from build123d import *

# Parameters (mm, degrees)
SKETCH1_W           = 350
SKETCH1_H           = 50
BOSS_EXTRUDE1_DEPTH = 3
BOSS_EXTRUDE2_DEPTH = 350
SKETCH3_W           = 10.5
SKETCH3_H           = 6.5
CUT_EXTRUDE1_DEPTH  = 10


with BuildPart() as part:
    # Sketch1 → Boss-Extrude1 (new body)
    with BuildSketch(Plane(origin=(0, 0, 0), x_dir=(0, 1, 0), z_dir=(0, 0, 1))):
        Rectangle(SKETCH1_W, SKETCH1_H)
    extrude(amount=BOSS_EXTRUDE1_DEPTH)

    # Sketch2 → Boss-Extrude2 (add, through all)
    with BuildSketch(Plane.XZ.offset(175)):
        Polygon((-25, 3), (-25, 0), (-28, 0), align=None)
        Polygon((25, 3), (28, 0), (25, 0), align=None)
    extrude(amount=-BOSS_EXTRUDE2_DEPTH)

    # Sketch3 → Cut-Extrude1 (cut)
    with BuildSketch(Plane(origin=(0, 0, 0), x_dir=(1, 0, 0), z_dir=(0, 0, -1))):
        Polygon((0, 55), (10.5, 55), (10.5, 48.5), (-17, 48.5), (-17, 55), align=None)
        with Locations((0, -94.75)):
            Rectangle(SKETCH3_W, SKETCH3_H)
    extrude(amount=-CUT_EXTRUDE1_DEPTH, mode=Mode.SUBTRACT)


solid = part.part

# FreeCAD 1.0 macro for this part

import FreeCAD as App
import Part
import Sketcher
from FreeCAD import Vector

doc = App.newDocument("Part")
body = doc.addObject("PartDesign::Body", "Body")

sketch1 = body.newObject("Sketcher::SketchObject", "Sketch")
sketch1.AttachmentSupport = (doc.getObject("XY_Plane"), [""])
sketch1.MapMode = "FlatFace"
sketch1.addGeometry(Part.LineSegment(Vector(-25, -175, 0), Vector(25, -175, 0)), False)
sketch1.addGeometry(Part.LineSegment(Vector(25, -175, 0), Vector(25, 175, 0)), False)
sketch1.addGeometry(Part.LineSegment(Vector(25, 175, 0), Vector(-25, 175, 0)), False)
sketch1.addGeometry(Part.LineSegment(Vector(-25, 175, 0), Vector(-25, -175, 0)), False)
sketch1.addConstraint(Sketcher.Constraint("Coincident", 0, 2, 1, 1))
sketch1.addConstraint(Sketcher.Constraint("Coincident", 1, 2, 2, 1))
sketch1.addConstraint(Sketcher.Constraint("Coincident", 2, 2, 3, 1))
sketch1.addConstraint(Sketcher.Constraint("Coincident", 3, 2, 0, 1))
sketch1.addConstraint(Sketcher.Constraint("Horizontal", 0))
sketch1.addConstraint(Sketcher.Constraint("Vertical", 1))
sketch1.addConstraint(Sketcher.Constraint("Horizontal", 2))
sketch1.addConstraint(Sketcher.Constraint("Vertical", 3))
sketch1.addConstraint(Sketcher.Constraint("Symmetric", 0, 2, 2, 2, -1, 1))
sketch1.addConstraint(Sketcher.Constraint("DistanceX", 0, 1, 0, 2, 50.0))
sketch1.addConstraint(Sketcher.Constraint("DistanceY", 1, 1, 1, 2, 350.0))
pad1 = body.newObject("PartDesign::Pad", "Pad")
pad1.Profile = sketch1
pad1.Length = 3

sketch2 = body.newObject("Sketcher::SketchObject", "Sketch001")
sketch2.AttachmentSupport = (doc.getObject("XZ_Plane"), [""])
sketch2.MapMode = "FlatFace"
sketch2.AttachmentOffset = App.Placement(Vector(0, 0, 175), App.Rotation())
sketch2.addGeometry(Part.LineSegment(Vector(-25, 0, 0), Vector(-25, 3, 0)), False)
sketch2.addGeometry(Part.LineSegment(Vector(-25, 3, 0), Vector(-28, 0, 0)), False)
sketch2.addGeometry(Part.LineSegment(Vector(-28, 0, 0), Vector(-25, 0, 0)), False)
sketch2.addGeometry(Part.LineSegment(Vector(28, 0, 0), Vector(25, 3, 0)), False)
sketch2.addGeometry(Part.LineSegment(Vector(25, 3, 0), Vector(25, 0, 0)), False)
sketch2.addGeometry(Part.LineSegment(Vector(25, 0, 0), Vector(28, 0, 0)), False)
sketch2.addConstraint(Sketcher.Constraint("Coincident", 0, 2, 1, 1))
sketch2.addConstraint(Sketcher.Constraint("Coincident", 1, 2, 2, 1))
sketch2.addConstraint(Sketcher.Constraint("Coincident", 2, 2, 0, 1))
sketch2.addConstraint(Sketcher.Constraint("Coincident", 3, 2, 4, 1))
sketch2.addConstraint(Sketcher.Constraint("Coincident", 4, 2, 5, 1))
sketch2.addConstraint(Sketcher.Constraint("Coincident", 5, 2, 3, 1))
sketch2.addConstraint(Sketcher.Constraint("Vertical", 0))
sketch2.addConstraint(Sketcher.Constraint("Horizontal", 2))
sketch2.addConstraint(Sketcher.Constraint("Vertical", 4))
sketch2.addConstraint(Sketcher.Constraint("Horizontal", 5))
sketch2.addConstraint(Sketcher.Constraint("Symmetric", 2, 2, 4, 2, -1, 1))
sketch2.addConstraint(Sketcher.Constraint("Symmetric", 1, 2, 5, 2, -2))
sketch2.addConstraint(Sketcher.Constraint("Perpendicular", 1, 3))
sketch2.addConstraint(Sketcher.Constraint("Horizontal", 0, 2, 3, 2))
sketch2.addConstraint(Sketcher.Constraint("DistanceX", 2, 1, 2, 2, 3.0))
sketch2.addConstraint(Sketcher.Constraint("DistanceX", 0, 2, -1, 1, 25.0))
pad2 = body.newObject("PartDesign::Pad", "Pad001")
pad2.Profile = sketch2
pad2.Type = "UpToLast"
pad2.Reversed = True

sketch3 = body.newObject("Sketcher::SketchObject", "Sketch002")
sketch3.AttachmentSupport = (doc.getObject("XY_Plane"), [""])
sketch3.MapMode = "FlatFace"
sketch3.addGeometry(Part.LineSegment(Vector(10, -55, 0), Vector(-17, -55, 0)), False)
sketch3.addGeometry(Part.LineSegment(Vector(-17, -55, 0), Vector(-17, -48, 0)), False)
sketch3.addGeometry(Part.LineSegment(Vector(-17, -48, 0), Vector(10, -48, 0)), False)
sketch3.addGeometry(Part.LineSegment(Vector(10, -48, 0), Vector(10, -55, 0)), False)
sketch3.addGeometry(Part.LineSegment(Vector(-5, 92, 0), Vector(-5, 98, 0)), False)
sketch3.addGeometry(Part.LineSegment(Vector(-5, 98, 0), Vector(5, 98, 0)), False)
sketch3.addGeometry(Part.LineSegment(Vector(5, 98, 0), Vector(5, 92, 0)), False)
sketch3.addGeometry(Part.LineSegment(Vector(5, 92, 0), Vector(-5, 92, 0)), False)
sketch3.addConstraint(Sketcher.Constraint("Coincident", 0, 2, 1, 1))
sketch3.addConstraint(Sketcher.Constraint("Coincident", 1, 2, 2, 1))
sketch3.addConstraint(Sketcher.Constraint("Coincident", 2, 2, 3, 1))
sketch3.addConstraint(Sketcher.Constraint("Coincident", 3, 2, 0, 1))
sketch3.addConstraint(Sketcher.Constraint("Coincident", 4, 2, 5, 1))
sketch3.addConstraint(Sketcher.Constraint("Coincident", 5, 2, 6, 1))
sketch3.addConstraint(Sketcher.Constraint("Coincident", 6, 2, 7, 1))
sketch3.addConstraint(Sketcher.Constraint("Coincident", 7, 2, 4, 1))
sketch3.addConstraint(Sketcher.Constraint("Horizontal", 0))
sketch3.addConstraint(Sketcher.Constraint("Vertical", 1))
sketch3.addConstraint(Sketcher.Constraint("Horizontal", 2))
sketch3.addConstraint(Sketcher.Constraint("Vertical", 3))
sketch3.addConstraint(Sketcher.Constraint("Vertical", 4))
sketch3.addConstraint(Sketcher.Constraint("Horizontal", 5))
sketch3.addConstraint(Sketcher.Constraint("Vertical", 6))
sketch3.addConstraint(Sketcher.Constraint("Horizontal", 7))
sketch3.addConstraint(Sketcher.Constraint("Equal", 3, 4))
sketch3.addConstraint(Sketcher.Constraint("DistanceX", 0, 2, 0, 1, 27.5))
sketch3.addConstraint(Sketcher.Constraint("DistanceX", 5, 1, 5, 2, 10.5))
sketch3.addConstraint(Sketcher.Constraint("DistanceY", 1, 1, 1, 2, 6.5))
sketch3.addConstraint(Sketcher.Constraint("DistanceX", 0, 2, -1, 1, 17.0))
sketch3.addConstraint(Sketcher.Constraint("DistanceY", 0, 2, -1, 1, 55.0))
sketch3.addConstraint(Sketcher.Constraint("DistanceY", -1, 1, 4, 2, 98.0))
sketch3.addConstraint(Sketcher.Constraint("DistanceX", 4, 2, -1, 1, 5.25))
pocket1 = body.newObject("PartDesign::Pocket", "Pocket")
pocket1.Profile = sketch3
pocket1.Length = 10
pocket1.Reversed = True

doc.recompute()
